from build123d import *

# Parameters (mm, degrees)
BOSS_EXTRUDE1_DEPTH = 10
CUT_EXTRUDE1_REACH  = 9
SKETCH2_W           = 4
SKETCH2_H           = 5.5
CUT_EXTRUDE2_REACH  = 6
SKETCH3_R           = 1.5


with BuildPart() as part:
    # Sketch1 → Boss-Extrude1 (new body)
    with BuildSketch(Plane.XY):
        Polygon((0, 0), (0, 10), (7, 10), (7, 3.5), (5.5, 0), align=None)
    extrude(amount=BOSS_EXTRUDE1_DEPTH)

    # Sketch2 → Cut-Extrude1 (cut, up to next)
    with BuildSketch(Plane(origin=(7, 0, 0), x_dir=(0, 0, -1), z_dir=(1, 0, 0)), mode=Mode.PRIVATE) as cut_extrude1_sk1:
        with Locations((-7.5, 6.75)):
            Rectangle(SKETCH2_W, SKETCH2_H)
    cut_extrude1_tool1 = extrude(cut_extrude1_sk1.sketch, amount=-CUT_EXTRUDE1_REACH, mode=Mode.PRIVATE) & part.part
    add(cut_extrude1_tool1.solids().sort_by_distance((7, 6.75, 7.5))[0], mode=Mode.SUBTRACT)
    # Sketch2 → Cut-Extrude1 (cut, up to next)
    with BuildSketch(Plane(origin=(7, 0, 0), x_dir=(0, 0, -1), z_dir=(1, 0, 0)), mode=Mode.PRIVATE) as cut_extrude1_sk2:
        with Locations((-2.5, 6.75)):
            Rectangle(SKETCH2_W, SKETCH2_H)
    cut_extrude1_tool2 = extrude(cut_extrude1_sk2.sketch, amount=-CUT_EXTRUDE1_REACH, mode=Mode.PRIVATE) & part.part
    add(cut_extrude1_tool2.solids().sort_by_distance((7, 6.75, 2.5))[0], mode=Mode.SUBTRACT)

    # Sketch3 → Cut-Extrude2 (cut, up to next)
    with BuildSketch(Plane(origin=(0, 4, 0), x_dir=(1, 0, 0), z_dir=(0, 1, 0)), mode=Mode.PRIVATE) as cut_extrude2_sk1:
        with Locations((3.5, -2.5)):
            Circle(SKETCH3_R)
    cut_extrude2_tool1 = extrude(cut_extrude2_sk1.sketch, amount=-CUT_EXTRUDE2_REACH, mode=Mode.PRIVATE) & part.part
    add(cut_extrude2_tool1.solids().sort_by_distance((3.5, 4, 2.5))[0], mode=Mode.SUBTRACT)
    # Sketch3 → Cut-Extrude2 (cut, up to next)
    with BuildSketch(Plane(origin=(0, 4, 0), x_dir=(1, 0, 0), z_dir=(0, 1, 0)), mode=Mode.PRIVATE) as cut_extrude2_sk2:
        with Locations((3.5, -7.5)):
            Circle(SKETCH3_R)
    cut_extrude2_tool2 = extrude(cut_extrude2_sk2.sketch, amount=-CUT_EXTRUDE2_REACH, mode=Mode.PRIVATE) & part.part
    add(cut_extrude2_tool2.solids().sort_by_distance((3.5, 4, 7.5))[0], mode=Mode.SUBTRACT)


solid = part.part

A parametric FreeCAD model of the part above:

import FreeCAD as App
import Part
import Sketcher

V = App.Vector

doc = App.newDocument("Part")
body = doc.addObject("PartDesign::Body", "Body")

sketch1 = body.newObject("Sketcher::SketchObject", "Sketch")
sketch1.AttachmentSupport = (doc.getObject("XY_Plane"), [""])
sketch1.MapMode = "FlatFace"
sketch1.addGeometry(Part.LineSegment(V(0, 10, 0), V(0, 0, 0)), False)
sketch1.addGeometry(Part.LineSegment(V(0, 0, 0), V(5.5, 0, 0)), False)
sketch1.addGeometry(Part.LineSegment(V(5.5, 0, 0), V(7, 3.5, 0)), False)
sketch1.addGeometry(Part.LineSegment(V(7, 3.5, 0), V(7, 10, 0)), False)
sketch1.addGeometry(Part.LineSegment(V(7, 10, 0), V(0, 10, 0)), False)
sketch1.addConstraint(Sketcher.Constraint("Coincident", 0, 2, 1, 1))
sketch1.addConstraint(Sketcher.Constraint("Coincident", 1, 2, 2, 1))
sketch1.addConstraint(Sketcher.Constraint("Coincident", 2, 2, 3, 1))
sketch1.addConstraint(Sketcher.Constraint("Coincident", 3, 2, 4, 1))
sketch1.addConstraint(Sketcher.Constraint("Coincident", 4, 2, 0, 1))
sketch1.addConstraint(Sketcher.Constraint("Vertical", 0))
sketch1.addConstraint(Sketcher.Constraint("Horizontal", 1))
sketch1.addConstraint(Sketcher.Constraint("Vertical", 3))
sketch1.addConstraint(Sketcher.Constraint("Horizontal", 4))
sketch1.addConstraint(Sketcher.Constraint("Coincident", 0, 2, -1, 1))
sketch1.addConstraint(Sketcher.Constraint("DistanceX", 4, 2, 4, 1, 7.0))
sketch1.addConstraint(Sketcher.Constraint("DistanceY", 0, 2, 0, 1, 10.0))
sketch1.addConstraint(Sketcher.Constraint("DistanceX", 1, 1, 1, 2, 5.5))
sketch1.addConstraint(Sketcher.Constraint("DistanceY", 3, 1, 3, 2, 6.5))
pad1 = body.newObject("PartDesign::Pad", "Pad")
pad1.Profile = sketch1
pad1.Length = 10

sketch2 = body.newObject("Sketcher::SketchObject", "Sketch001")
sketch2.AttachmentSupport = (doc.getObject("YZ_Plane"), [""])
sketch2.MapMode = "FlatFace"
sketch2.AttachmentOffset = App.Placement(V(0, 0, 7), App.Rotation())
sketch2.addGeometry(Part.LineSegment(V(9.5, 9.5, 0), V(4, 9.5, 0)), False)
sketch2.addGeometry(Part.LineSegment(V(4, 9.5, 0), V(4, 5.5, 0)), False)
sketch2.addGeometry(Part.LineSegment(V(4, 5.5, 0), V(9.5, 5.5, 0)), False)
sketch2.addGeometry(Part.LineSegment(V(9.5, 5.5, 0), V(9.5, 9.5, 0)), False)
sketch2.addConstraint(Sketcher.Constraint("Coincident", 0, 2, 1, 1))
sketch2.addConstraint(Sketcher.Constraint("Coincident", 1, 2, 2, 1))
sketch2.addConstraint(Sketcher.Constraint("Coincident", 2, 2, 3, 1))
sketch2.addConstraint(Sketcher.Constraint("Coincident", 3, 2, 0, 1))
sketch2.addConstraint(Sketcher.Constraint("Horizontal", 0))
sketch2.addConstraint(Sketcher.Constraint("Vertical", 1))
sketch2.addConstraint(Sketcher.Constraint("Horizontal", 2))
sketch2.addConstraint(Sketcher.Constraint("Vertical", 3))
sketch2.addConstraint(Sketcher.Constraint("DistanceY", 1, 2, 1, 1, 4.0))
sketch2.addConstraint(Sketcher.Constraint("DistanceX", 0, 2, 0, 1, 5.5))
sketch2.addConstraint(Sketcher.Constraint("DistanceX", -1, 1, 0, 2, 4.0))
sketch2.addConstraint(Sketcher.Constraint("DistanceY", -1, 1, 0, 2, 9.5))
pocket1 = body.newObject("PartDesign::Pocket", "Pocket")
pocket1.Profile = sketch2
pocket1.Type = "UpToFirst"

sketch3 = body.newObject("Sketcher::SketchObject", "Sketch002")
sketch3.AttachmentSupport = (doc.getObject("YZ_Plane"), [""])
sketch3.MapMode = "FlatFace"
sketch3.AttachmentOffset = App.Placement(V(0, 0, 7), App.Rotation())
sketch3.addGeometry(Part.LineSegment(V(9.5, 4.5, 0), V(4, 4.5, 0)), False)
sketch3.addGeometry(Part.LineSegment(V(4, 4.5, 0), V(4, 0.5, 0)), False)
sketch3.addGeometry(Part.LineSegment(V(4, 0.5, 0), V(9.5, 0.5, 0)), False)
sketch3.addGeometry(Part.LineSegment(V(9.5, 0.5, 0), V(9.5, 4.5, 0)), False)
sketch3.addConstraint(Sketcher.Constraint("Coincident", 0, 2, 1, 1))
sketch3.addConstraint(Sketcher.Constraint("Coincident", 1, 2, 2, 1))
sketch3.addConstraint(Sketcher.Constraint("Coincident", 2, 2, 3, 1))
sketch3.addConstraint(Sketcher.Constraint("Coincident", 3, 2, 0, 1))
sketch3.addConstraint(Sketcher.Constraint("Horizontal", 0))
sketch3.addConstraint(Sketcher.Constraint("Vertical", 1))
sketch3.addConstraint(Sketcher.Constraint("Horizontal", 2))
sketch3.addConstraint(Sketcher.Constraint("Vertical", 3))
sketch3.addConstraint(Sketcher.Constraint("DistanceY", 1, 2, 1, 1, 4.0))
sketch3.addConstraint(Sketcher.Constraint("DistanceX", 0, 2, 0, 1, 5.5))
sketch3.addConstraint(Sketcher.Constraint("DistanceX", -1, 1, 0, 2, 4.0))
sketch3.addConstraint(Sketcher.Constraint("DistanceY", -1, 1, 0, 2, 4.5))
pocket2 = body.newObject("PartDesign::Pocket", "Pocket001")
pocket2.Profile = sketch3
pocket2.Type = "UpToFirst"

sketch4 = body.newObject("Sketcher::SketchObject", "Sketch003")
sketch4.AttachmentSupport = (doc.getObject("XZ_Plane"), [""])
sketch4.MapMode = "FlatFace"
sketch4.AttachmentOffset = App.Placement(V(0, 0, -4), App.Rotation())
sketch4.addGeometry(Part.Circle(V(3.5, 2.5, 0), V(0, 0, 1), 1.5), False)
sketch4.addConstraint(Sketcher.Constraint("Diameter", 0, 3.0))
sketch4.addConstraint(Sketcher.Constraint("DistanceX", -1, 1, 0, 3, 3.5))
sketch4.addConstraint(Sketcher.Constraint("DistanceY", -1, 1, 0, 3, 2.5))
pocket3 = body.newObject("PartDesign::Pocket", "Pocket002")
pocket3.Profile = sketch4
pocket3.Type = "UpToFirst"
pocket3.Reversed = True

sketch5 = body.newObject("Sketcher::SketchObject", "Sketch004")
sketch5.AttachmentSupport = (doc.getObject("XZ_Plane"), [""])
sketch5.MapMode = "FlatFace"
sketch5.AttachmentOffset = App.Placement(V(0, 0, -4), App.Rotation())
sketch5.addGeometry(Part.Circle(V(3.5, 7.5, 0), V(0, 0, 1), 1.5), False)
sketch5.addConstraint(Sketcher.Constraint("Diameter", 0, 3.0))
sketch5.addConstraint(Sketcher.Constraint("DistanceX", -1, 1, 0, 3, 3.5))
sketch5.addConstraint(Sketcher.Constraint("DistanceY", -1, 1, 0, 3, 7.5))
pocket4 = body.newObject("PartDesign::Pocket", "Pocket003")
pocket4.Profile = sketch5
pocket4.Type = "UpToFirst"
pocket4.Reversed = True

doc.recompute()
